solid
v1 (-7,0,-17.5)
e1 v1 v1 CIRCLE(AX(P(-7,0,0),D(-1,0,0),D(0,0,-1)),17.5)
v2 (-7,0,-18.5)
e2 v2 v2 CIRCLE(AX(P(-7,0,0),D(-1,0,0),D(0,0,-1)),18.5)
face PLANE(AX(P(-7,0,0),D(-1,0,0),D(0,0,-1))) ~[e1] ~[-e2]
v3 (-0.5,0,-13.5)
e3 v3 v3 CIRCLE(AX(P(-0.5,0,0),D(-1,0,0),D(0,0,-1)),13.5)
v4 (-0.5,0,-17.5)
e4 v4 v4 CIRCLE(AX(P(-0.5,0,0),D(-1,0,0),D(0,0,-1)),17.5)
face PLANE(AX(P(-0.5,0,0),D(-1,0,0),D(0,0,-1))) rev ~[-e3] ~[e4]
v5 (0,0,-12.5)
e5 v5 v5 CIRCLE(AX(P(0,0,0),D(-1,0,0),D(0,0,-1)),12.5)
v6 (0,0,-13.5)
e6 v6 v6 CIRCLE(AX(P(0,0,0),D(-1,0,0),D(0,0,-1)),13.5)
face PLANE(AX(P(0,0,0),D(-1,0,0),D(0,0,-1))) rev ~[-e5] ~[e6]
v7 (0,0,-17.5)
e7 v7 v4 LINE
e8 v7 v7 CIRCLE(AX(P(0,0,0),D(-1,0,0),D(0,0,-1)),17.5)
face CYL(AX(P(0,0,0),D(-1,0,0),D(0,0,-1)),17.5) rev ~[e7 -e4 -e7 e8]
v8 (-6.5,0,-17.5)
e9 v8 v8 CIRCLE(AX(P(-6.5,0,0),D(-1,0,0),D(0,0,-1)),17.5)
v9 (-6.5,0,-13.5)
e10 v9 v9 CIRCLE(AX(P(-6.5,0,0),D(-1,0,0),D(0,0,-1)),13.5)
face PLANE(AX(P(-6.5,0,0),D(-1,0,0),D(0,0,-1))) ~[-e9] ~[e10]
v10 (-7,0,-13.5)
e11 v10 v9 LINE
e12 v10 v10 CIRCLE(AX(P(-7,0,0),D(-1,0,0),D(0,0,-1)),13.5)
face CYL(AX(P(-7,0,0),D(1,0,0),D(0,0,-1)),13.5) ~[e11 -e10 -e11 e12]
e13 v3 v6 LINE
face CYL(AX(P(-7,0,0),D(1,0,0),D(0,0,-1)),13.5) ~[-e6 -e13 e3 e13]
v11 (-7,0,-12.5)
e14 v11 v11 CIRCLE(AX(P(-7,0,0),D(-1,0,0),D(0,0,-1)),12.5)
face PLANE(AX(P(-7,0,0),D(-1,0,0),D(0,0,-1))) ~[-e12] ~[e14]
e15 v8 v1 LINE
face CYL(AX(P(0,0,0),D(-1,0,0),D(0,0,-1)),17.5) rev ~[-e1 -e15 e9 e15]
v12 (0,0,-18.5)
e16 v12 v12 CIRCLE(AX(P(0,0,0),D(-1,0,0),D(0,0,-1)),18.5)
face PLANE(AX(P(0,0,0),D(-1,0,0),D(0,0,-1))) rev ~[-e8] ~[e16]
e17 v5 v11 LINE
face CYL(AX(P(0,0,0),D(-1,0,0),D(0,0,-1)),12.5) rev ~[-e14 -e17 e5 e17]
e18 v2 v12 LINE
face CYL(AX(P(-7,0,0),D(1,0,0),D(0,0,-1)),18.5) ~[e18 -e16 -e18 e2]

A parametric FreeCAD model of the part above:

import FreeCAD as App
import Part
import Sketcher
from FreeCAD import Vector
Q = App.Units.Quantity


def add_polygon(sketch, points):
    """Adds a closed chain of lines whose ends are joined by coincident constraints."""
    first, n = sketch.GeometryCount, len(points)
    for a, b in zip(points, points[1:] + points[:1]):
        sketch.addGeometry(Part.LineSegment(App.Vector(*a, 0), App.Vector(*b, 0)), False)
    for i in range(n):
        sketch.addConstraint(Sketcher.Constraint("Coincident", first + i, 2, first + (i + 1) % n, 1))

doc = App.newDocument("Part")
params = doc.addObject("Spreadsheet::Sheet", "Params")
for row, (alias, value) in enumerate([
    ("sketch1_width", "7 mm"),
    ("sketch1_height", "1 mm"),
    ("sketch1_height2", "4 mm"),
    ("revolution_angle", "360 deg"),
], start=1):
    params.set(f"A{row}", alias)
    params.set(f"B{row}", "=" + value)
    params.setAlias(f"B{row}", alias)

body = doc.addObject("PartDesign::Body", "Body")

# Sketch on XZ plane
sketch1 = body.newObject("Sketcher::SketchObject", "Sketch")
sketch1.AttachmentSupport = (doc.getObject("XZ_Plane"), [""])
sketch1.MapMode = "FlatFace"
add_polygon(sketch1, [(-7, -12.5), (0, -12.5), (0, -13.5), (-0.5, -13.5), (-0.5, -17.5), (0, -17.5), (0, -18.5), (-7, -18.5), (-7, -17.5), (-6.5, -17.5), (-6.5, -13.5), (-7, -13.5)])  # lines 0-11
sketch1.addConstraint([
    Sketcher.Constraint("Horizontal", 0),
    Sketcher.Constraint("Vertical", 1),
    Sketcher.Constraint("Horizontal", 2),
    Sketcher.Constraint("Vertical", 3),
    Sketcher.Constraint("Horizontal", 4),
    Sketcher.Constraint("Vertical", 5),
    Sketcher.Constraint("Horizontal", 6),
    Sketcher.Constraint("Vertical", 7),
    Sketcher.Constraint("Horizontal", 8),
    Sketcher.Constraint("Vertical", 9),
    Sketcher.Constraint("Horizontal", 10),
    Sketcher.Constraint("Vertical", 11),
    Sketcher.Constraint("PointOnObject", 0, 2, -2),
    Sketcher.Constraint("PointOnObject", 4, 2, -2),
    Sketcher.Constraint("Horizontal", 4, 2, 7, 2),
    Sketcher.Constraint("Horizontal", 2, 2, 9, 2),
    Sketcher.Constraint("Vertical", 7, 2, 10, 2),
    Sketcher.Constraint("Equal", 4, 8),
    Sketcher.Constraint("Equal", 1, 5),
    Sketcher.Constraint("DistanceX", 0, 1, 0, 2, Q("7 mm")),
    Sketcher.Constraint("DistanceY", 1, 2, 1, 1, Q("1 mm")),
    Sketcher.Constraint("DistanceY", 3, 2, 3, 1, Q("4 mm")),
    Sketcher.Constraint("DistanceX", 8, 2, 3, 2, Q("6 mm")),
    Sketcher.Constraint("DistanceY", 0, 2, -1, 1, Q("12.5 mm")),
])
sketch1.setExpression("Constraints[31]", "Params.sketch1_width")
sketch1.setExpression("Constraints[32]", "Params.sketch1_height")
sketch1.setExpression("Constraints[33]", "Params.sketch1_height2")
revolution = body.newObject("PartDesign::Revolution", "Revolution")
revolution.Profile = sketch1
revolution.ReferenceAxis = (sketch1, ["H_Axis"])
revolution.setExpression("Angle", "Params.revolution_angle")

doc.recompute()
